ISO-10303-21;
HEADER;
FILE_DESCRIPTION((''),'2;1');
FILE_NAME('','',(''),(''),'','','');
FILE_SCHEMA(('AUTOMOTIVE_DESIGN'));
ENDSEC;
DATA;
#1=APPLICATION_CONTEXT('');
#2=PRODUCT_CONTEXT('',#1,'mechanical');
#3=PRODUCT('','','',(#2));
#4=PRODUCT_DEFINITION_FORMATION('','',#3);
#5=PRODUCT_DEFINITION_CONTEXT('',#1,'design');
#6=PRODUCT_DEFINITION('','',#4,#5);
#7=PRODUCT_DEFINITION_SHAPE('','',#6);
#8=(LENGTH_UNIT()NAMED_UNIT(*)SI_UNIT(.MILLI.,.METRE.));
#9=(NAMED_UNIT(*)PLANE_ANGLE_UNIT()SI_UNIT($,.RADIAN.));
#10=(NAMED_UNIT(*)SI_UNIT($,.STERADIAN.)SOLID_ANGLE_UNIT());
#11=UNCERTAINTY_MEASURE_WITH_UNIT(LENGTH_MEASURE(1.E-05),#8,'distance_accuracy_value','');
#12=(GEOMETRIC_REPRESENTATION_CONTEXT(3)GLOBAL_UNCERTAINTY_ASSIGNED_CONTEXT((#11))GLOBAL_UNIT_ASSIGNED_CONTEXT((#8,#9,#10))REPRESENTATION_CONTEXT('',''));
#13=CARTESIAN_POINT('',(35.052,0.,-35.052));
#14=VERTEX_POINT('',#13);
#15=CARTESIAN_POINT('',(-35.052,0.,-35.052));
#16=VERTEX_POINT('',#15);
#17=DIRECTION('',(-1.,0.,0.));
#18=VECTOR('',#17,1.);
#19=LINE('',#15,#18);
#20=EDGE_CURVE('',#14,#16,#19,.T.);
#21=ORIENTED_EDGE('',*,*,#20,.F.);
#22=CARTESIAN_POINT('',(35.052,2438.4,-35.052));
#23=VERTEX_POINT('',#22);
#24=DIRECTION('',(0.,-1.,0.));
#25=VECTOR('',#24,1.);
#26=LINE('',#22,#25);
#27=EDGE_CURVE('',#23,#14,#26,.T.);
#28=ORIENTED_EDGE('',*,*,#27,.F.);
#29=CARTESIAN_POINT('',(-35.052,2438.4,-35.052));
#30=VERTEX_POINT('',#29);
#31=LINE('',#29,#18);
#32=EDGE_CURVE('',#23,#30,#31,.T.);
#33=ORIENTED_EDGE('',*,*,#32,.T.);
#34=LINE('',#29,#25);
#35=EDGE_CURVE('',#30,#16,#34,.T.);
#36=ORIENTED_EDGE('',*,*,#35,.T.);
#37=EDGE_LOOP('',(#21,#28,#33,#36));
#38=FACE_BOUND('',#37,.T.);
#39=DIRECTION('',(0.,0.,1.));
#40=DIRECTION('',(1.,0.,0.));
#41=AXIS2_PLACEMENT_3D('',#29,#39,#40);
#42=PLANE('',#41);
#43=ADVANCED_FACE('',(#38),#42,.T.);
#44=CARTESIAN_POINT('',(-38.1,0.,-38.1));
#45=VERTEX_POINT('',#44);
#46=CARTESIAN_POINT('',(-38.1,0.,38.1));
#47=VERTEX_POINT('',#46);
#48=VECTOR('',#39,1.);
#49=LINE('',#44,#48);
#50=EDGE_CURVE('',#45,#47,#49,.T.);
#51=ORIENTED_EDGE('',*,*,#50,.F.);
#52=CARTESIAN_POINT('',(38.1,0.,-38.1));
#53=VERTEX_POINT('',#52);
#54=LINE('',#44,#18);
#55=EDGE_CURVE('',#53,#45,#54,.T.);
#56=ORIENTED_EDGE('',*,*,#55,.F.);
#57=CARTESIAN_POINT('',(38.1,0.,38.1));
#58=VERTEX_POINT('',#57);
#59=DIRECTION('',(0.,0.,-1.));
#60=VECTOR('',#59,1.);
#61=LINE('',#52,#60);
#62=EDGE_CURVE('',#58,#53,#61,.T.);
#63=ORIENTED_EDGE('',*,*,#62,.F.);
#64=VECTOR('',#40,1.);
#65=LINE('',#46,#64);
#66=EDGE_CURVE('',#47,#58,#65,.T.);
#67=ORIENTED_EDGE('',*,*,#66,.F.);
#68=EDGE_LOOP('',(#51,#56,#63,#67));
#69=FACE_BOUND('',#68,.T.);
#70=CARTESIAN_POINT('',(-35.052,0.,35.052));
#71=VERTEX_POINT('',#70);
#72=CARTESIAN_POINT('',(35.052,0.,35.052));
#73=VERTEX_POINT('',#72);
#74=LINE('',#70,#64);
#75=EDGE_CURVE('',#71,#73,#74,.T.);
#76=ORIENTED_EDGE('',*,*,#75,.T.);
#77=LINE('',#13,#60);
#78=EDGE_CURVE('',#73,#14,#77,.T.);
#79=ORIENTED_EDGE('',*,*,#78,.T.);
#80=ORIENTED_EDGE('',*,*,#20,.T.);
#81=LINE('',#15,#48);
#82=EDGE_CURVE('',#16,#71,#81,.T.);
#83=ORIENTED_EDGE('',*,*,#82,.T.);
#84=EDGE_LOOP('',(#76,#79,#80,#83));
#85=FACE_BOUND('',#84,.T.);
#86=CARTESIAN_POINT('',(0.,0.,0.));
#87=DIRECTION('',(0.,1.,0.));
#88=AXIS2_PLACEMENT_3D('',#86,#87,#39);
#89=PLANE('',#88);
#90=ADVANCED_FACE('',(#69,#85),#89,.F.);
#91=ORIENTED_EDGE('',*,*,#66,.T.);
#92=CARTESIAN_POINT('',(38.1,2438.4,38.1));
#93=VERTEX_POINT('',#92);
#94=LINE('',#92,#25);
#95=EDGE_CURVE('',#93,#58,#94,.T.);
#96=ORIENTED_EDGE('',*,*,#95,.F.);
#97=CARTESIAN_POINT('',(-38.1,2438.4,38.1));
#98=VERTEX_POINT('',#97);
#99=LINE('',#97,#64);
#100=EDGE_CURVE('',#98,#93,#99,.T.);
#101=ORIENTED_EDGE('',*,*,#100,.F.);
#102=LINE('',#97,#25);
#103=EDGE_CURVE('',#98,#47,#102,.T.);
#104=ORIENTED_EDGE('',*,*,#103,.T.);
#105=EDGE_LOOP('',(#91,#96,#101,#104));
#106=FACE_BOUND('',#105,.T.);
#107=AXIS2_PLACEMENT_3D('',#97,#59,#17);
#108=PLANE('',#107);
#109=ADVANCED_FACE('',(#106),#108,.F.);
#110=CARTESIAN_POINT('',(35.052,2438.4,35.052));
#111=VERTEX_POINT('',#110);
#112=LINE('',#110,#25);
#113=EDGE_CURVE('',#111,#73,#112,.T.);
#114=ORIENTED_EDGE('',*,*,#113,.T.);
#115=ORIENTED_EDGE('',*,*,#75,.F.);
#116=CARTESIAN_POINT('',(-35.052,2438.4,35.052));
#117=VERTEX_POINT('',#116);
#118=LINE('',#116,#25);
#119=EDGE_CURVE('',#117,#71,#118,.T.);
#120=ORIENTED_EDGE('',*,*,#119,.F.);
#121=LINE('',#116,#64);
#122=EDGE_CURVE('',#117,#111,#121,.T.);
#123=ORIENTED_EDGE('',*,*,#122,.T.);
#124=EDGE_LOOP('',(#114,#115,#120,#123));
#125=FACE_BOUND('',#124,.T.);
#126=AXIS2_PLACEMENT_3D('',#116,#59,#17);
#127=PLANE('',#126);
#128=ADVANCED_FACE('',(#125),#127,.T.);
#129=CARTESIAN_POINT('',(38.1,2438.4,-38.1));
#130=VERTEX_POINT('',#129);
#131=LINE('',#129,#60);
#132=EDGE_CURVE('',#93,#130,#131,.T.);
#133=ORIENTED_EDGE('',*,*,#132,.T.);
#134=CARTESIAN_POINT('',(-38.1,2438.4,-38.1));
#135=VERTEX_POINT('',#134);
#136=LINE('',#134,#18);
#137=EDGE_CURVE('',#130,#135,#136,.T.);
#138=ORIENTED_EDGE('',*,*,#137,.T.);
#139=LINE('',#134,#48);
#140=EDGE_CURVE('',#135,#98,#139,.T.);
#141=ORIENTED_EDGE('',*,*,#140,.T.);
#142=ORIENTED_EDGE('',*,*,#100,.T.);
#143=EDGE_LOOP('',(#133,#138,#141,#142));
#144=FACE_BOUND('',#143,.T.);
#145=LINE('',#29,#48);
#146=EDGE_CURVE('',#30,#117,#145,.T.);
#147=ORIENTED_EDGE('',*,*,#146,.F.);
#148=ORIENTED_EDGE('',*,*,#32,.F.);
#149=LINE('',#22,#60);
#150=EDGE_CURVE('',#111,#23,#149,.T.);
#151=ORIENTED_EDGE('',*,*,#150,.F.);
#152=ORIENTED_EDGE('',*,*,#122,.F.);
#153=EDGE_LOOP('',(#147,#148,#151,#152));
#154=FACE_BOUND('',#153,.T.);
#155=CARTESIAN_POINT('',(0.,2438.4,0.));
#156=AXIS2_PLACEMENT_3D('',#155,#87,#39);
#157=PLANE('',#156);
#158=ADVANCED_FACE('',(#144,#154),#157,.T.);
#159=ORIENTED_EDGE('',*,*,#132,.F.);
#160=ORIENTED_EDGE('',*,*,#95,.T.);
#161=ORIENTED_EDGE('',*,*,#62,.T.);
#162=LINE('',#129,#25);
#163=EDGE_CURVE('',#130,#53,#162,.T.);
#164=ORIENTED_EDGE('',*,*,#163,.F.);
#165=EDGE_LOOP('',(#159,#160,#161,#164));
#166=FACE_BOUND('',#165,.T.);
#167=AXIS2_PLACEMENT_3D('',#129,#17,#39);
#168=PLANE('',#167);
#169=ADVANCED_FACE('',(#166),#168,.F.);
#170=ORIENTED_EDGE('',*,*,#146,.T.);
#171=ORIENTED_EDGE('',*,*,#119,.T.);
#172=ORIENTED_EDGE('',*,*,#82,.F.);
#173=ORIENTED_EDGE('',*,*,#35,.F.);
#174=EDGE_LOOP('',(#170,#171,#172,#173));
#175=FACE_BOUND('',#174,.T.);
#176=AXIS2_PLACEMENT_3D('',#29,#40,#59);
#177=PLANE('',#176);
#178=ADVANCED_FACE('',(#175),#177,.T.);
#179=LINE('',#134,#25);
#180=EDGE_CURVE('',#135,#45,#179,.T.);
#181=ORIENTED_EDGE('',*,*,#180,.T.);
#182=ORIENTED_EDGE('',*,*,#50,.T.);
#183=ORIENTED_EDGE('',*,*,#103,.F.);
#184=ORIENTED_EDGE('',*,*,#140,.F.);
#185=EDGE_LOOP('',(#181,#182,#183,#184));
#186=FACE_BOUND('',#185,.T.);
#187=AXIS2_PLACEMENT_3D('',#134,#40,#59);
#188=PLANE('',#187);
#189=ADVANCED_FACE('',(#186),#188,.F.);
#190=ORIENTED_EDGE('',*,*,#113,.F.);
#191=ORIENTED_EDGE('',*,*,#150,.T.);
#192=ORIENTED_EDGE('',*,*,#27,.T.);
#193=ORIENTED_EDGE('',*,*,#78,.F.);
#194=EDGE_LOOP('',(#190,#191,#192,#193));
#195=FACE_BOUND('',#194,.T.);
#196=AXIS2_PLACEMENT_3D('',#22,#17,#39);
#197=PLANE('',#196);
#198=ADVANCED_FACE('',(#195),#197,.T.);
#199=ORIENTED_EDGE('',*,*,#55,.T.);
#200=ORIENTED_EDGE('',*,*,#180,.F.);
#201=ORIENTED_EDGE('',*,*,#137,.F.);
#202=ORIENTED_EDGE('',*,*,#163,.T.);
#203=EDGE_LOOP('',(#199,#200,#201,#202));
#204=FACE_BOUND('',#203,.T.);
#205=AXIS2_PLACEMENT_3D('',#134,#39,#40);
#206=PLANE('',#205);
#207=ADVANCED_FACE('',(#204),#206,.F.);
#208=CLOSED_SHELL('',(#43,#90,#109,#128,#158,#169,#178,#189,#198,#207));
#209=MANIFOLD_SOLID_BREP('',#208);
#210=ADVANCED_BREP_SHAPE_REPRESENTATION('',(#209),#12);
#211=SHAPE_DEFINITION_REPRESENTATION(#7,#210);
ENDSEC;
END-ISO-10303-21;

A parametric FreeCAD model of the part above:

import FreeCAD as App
import Part
import Sketcher

V = App.Vector
Q = App.Units.Quantity


def add_polygon(sketch, points):
    """Adds a closed chain of lines whose ends are joined by coincident constraints."""
    first, n = sketch.GeometryCount, len(points)
    for a, b in zip(points, points[1:] + points[:1]):
        sketch.addGeometry(Part.LineSegment(App.Vector(*a, 0), App.Vector(*b, 0)), False)
    for i in range(n):
        sketch.addConstraint(Sketcher.Constraint("Coincident", first + i, 2, first + (i + 1) % n, 1))

doc = App.newDocument("Part")
params = doc.addObject("Spreadsheet::Sheet", "Params")
for row, (alias, value) in enumerate([
    ("sketch1_width", "3 in"),
    ("sketch1_width2", "2.76 in"),
    ("pad1_length", "96 in"),
], start=1):
    params.set(f"A{row}", alias)
    params.set(f"B{row}", "=" + value)
    params.setAlias(f"B{row}", alias)

body = doc.addObject("PartDesign::Body", "Body")

sketch1 = body.newObject("Sketcher::SketchObject", "Sketch")
sketch1.AttachmentSupport = (doc.getObject("XZ_Plane"), [""])
sketch1.MapMode = "FlatFace"
add_polygon(sketch1, [(-38.1, -38.1), (-38.1, 38.1), (38.1, 38.1), (38.1, -38.1)])
add_polygon(sketch1, [(35.052, 35.052), (-35.052, 35.052), (-35.052, -35.052), (35.052, -35.052)])
sketch1.addConstraint([
    Sketcher.Constraint("Vertical", 0),
    Sketcher.Constraint("Horizontal", 1),
    Sketcher.Constraint("Vertical", 2),
    Sketcher.Constraint("Horizontal", 3),
    Sketcher.Constraint("Horizontal", 4),
    Sketcher.Constraint("Vertical", 5),
    Sketcher.Constraint("Horizontal", 6),
    Sketcher.Constraint("Vertical", 7),
    Sketcher.Constraint("Symmetric", 0, 2, 2, 2, -1, 1),
    Sketcher.Constraint("Symmetric", 4, 2, 6, 2, -1, 1),
    Sketcher.Constraint("Equal", 3, 0),
    Sketcher.Constraint("Equal", 6, 5),
    Sketcher.Constraint("DistanceX", 1, 1, 1, 2, Q("3 in")),
    Sketcher.Constraint("DistanceX", 4, 2, 4, 1, Q("2.76 in")),
])
sketch1.setExpression("Constraints[20]", "Params.sketch1_width")
sketch1.setExpression("Constraints[21]", "Params.sketch1_width2")
pad1 = body.newObject("PartDesign::Pad", "Pad")
pad1.Profile = sketch1
pad1.setExpression("Length", "Params.pad1_length")
pad1.Reversed = True

doc.recompute()
